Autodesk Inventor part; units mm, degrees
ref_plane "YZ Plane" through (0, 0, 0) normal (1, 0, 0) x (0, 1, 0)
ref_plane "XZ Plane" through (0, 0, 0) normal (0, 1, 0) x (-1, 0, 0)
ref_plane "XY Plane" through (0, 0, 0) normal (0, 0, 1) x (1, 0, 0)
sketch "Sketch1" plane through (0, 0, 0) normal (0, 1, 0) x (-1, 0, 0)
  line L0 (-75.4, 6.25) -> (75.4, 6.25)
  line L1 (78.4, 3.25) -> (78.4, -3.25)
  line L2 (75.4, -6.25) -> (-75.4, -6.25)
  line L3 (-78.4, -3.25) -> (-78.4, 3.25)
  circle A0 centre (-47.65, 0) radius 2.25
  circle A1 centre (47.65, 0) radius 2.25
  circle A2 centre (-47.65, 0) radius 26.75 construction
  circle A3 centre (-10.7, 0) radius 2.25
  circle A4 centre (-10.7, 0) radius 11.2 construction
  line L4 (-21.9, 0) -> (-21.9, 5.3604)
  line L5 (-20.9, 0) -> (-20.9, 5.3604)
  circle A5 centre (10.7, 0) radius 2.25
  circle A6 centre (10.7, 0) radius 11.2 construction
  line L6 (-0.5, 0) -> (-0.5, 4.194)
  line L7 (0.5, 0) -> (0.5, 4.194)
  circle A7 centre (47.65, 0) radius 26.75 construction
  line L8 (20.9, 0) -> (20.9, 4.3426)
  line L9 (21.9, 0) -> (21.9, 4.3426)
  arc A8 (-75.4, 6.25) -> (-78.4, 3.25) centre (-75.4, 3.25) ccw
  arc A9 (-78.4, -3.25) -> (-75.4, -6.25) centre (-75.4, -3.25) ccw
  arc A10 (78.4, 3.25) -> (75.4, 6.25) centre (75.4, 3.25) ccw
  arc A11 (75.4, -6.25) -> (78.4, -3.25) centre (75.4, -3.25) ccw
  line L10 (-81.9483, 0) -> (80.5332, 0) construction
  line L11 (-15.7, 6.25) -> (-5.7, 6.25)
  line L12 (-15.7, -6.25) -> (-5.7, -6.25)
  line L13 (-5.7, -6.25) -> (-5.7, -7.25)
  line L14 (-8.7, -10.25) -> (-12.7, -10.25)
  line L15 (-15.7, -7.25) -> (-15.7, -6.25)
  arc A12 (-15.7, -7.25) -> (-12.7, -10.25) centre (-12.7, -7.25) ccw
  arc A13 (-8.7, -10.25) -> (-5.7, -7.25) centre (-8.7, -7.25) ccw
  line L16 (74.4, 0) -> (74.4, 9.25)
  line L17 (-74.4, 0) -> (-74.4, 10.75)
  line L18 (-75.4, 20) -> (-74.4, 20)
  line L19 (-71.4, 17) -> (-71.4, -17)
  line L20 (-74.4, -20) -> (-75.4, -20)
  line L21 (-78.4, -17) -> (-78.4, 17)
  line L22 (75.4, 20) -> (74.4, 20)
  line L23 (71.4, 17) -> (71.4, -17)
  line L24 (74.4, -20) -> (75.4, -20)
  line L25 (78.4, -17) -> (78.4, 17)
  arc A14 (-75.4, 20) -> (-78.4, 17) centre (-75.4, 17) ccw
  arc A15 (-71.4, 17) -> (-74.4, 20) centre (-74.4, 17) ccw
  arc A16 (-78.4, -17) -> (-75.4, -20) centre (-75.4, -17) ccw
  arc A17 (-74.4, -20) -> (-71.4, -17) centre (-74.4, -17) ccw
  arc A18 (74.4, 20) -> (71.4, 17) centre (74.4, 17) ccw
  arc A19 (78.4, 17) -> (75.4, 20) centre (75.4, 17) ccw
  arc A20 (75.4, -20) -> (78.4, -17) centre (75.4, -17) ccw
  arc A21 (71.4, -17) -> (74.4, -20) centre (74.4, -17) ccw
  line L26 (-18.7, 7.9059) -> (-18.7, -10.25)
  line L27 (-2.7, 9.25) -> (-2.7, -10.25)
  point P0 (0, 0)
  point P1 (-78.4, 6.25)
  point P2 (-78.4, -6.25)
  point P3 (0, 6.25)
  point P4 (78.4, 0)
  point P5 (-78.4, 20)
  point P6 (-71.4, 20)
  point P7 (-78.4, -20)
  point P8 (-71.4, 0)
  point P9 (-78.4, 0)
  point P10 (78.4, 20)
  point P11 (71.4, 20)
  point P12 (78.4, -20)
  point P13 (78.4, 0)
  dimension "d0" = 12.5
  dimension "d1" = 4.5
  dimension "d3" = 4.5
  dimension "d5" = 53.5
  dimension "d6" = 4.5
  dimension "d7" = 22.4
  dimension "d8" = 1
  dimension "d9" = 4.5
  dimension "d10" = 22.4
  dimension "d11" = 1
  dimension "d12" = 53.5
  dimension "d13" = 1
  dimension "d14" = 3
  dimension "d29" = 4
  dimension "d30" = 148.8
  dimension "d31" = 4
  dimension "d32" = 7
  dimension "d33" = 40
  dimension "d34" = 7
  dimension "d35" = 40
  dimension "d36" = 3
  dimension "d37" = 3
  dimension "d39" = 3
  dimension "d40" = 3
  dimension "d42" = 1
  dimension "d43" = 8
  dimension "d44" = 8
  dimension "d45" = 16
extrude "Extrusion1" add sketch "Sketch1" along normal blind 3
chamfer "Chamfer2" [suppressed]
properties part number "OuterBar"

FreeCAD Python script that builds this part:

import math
import FreeCAD as App
import Part
import Sketcher

V = App.Vector

doc = App.newDocument("Part")
params = doc.addObject("Spreadsheet::Sheet", "Params")
for row, (alias, value) in enumerate([
    ("sketch1_radius", "3 mm"),
    ("sketch1_diameter", "4.5 mm"),
    ("sketch1_width", "1 mm"),
    ("sketch1_width2", "4 mm"),
    ("sketch1_height", "34 mm"),
    ("pad1_length", "3 mm"),
], start=1):
    params.set(f"A{row}", alias)
    params.set(f"B{row}", "=" + value)
    params.setAlias(f"B{row}", alias)

body = doc.addObject("PartDesign::Body", "Body")

sketch1 = body.newObject("Sketcher::SketchObject", "Sketch")
sketch1.AttachmentSupport = (doc.getObject("XZ_Plane"), [""])
sketch1.MapMode = "FlatFace"
sketch1.addGeometry(Part.LineSegment(V(71.4, 6.2, 0), V(71.4, 17, 0)), False)
sketch1.addGeometry(Part.ArcOfCircle(Part.Circle(V(74.4, 17, 0), V(0, 0, 1), 3), math.radians(90), math.radians(180)), False)
sketch1.addGeometry(Part.LineSegment(V(74.4, 20, 0), V(75.4, 20, 0)), False)
sketch1.addGeometry(Part.ArcOfCircle(Part.Circle(V(75.4, 17, 0), V(0, 0, 1), 3), math.radians(0), math.radians(90)), False)
sketch1.addGeometry(Part.LineSegment(V(78.4, 17, 0), V(78.4, -17, 0)), False)
sketch1.addGeometry(Part.ArcOfCircle(Part.Circle(V(75.4, -17, 0), V(0, 0, 1), 3), math.radians(-90), math.radians(0)), False)
sketch1.addGeometry(Part.LineSegment(V(75.4, -20, 0), V(74.4, -20, 0)), False)
sketch1.addGeometry(Part.ArcOfCircle(Part.Circle(V(74.4, -17, 0), V(0, 0, 1), 3), math.radians(180), math.radians(270)), False)
sketch1.addGeometry(Part.LineSegment(V(71.4, -17, 0), V(71.4, -6.2, 0)), False)
sketch1.addGeometry(Part.LineSegment(V(71.4, -6.2, 0), V(15.7, -6.2, 0)), False)
sketch1.addGeometry(Part.LineSegment(V(15.7, -6.2, 0), V(15.7, -7.2, 0)), False)
sketch1.addGeometry(Part.ArcOfCircle(Part.Circle(V(12.7, -7.2, 0), V(0, 0, 1), 3), math.radians(-90), math.radians(0)), False)
sketch1.addGeometry(Part.LineSegment(V(12.7, -10.2, 0), V(8.7, -10.2, 0)), False)
sketch1.addGeometry(Part.ArcOfCircle(Part.Circle(V(8.7, -7.2, 0), V(0, 0, 1), 3), math.radians(180), math.radians(270)), False)
sketch1.addGeometry(Part.LineSegment(V(5.7, -7.2, 0), V(5.7, -6.2, 0)), False)
sketch1.addGeometry(Part.LineSegment(V(5.7, -6.2, 0), V(-71.4, -6.2, 0)), False)
sketch1.addGeometry(Part.LineSegment(V(-71.4, -6.2, 0), V(-71.4, -17, 0)), False)
sketch1.addGeometry(Part.ArcOfCircle(Part.Circle(V(-74.4, -17, 0), V(0, 0, 1), 3), math.radians(-90), math.radians(0)), False)
sketch1.addGeometry(Part.LineSegment(V(-74.4, -20, 0), V(-75.4, -20, 0)), False)
sketch1.addGeometry(Part.ArcOfCircle(Part.Circle(V(-75.4, -17, 0), V(0, 0, 1), 3), math.radians(180), math.radians(270)), False)
sketch1.addGeometry(Part.LineSegment(V(-78.4, -17, 0), V(-78.4, 17, 0)), False)
sketch1.addGeometry(Part.ArcOfCircle(Part.Circle(V(-75.4, 17, 0), V(0, 0, 1), 3), math.radians(90), math.radians(180)), False)
sketch1.addGeometry(Part.LineSegment(V(-75.4, 20, 0), V(-74.4, 20, 0)), False)
sketch1.addGeometry(Part.ArcOfCircle(Part.Circle(V(-74.4, 17, 0), V(0, 0, 1), 3), math.radians(0), math.radians(90)), False)
sketch1.addGeometry(Part.LineSegment(V(-71.4, 17, 0), V(-71.4, 6.2, 0)), False)
sketch1.addGeometry(Part.LineSegment(V(-71.4, 6.2, 0), V(71.4, 6.2, 0)), False)
sketch1.addGeometry(Part.Circle(V(10.7, 0, 0), V(0, 0, 1), 2.2), False)
sketch1.addGeometry(Part.Circle(V(-47.6, 0, 0), V(0, 0, 1), 2.2), False)
sketch1.addGeometry(Part.Circle(V(-10.7, 0, 0), V(0, 0, 1), 2.2), False)
sketch1.addGeometry(Part.Circle(V(47.6, 0, 0), V(0, 0, 1), 2.2), False)
sketch1.addConstraint(Sketcher.Constraint("Tangent", 0, 2, 1, 2))
sketch1.addConstraint(Sketcher.Constraint("Tangent", 1, 1, 2, 1))
sketch1.addConstraint(Sketcher.Constraint("Tangent", 2, 2, 3, 2))
sketch1.addConstraint(Sketcher.Constraint("Tangent", 3, 1, 4, 1))
sketch1.addConstraint(Sketcher.Constraint("Tangent", 4, 2, 5, 2))
sketch1.addConstraint(Sketcher.Constraint("Tangent", 5, 1, 6, 1))
sketch1.addConstraint(Sketcher.Constraint("Tangent", 6, 2, 7, 2))
sketch1.addConstraint(Sketcher.Constraint("Tangent", 7, 1, 8, 1))
sketch1.addConstraint(Sketcher.Constraint("Coincident", 8, 2, 9, 1))
sketch1.addConstraint(Sketcher.Constraint("Coincident", 9, 2, 10, 1))
sketch1.addConstraint(Sketcher.Constraint("Tangent", 10, 2, 11, 2))
sketch1.addConstraint(Sketcher.Constraint("Tangent", 11, 1, 12, 1))
sketch1.addConstraint(Sketcher.Constraint("Tangent", 12, 2, 13, 2))
sketch1.addConstraint(Sketcher.Constraint("Tangent", 13, 1, 14, 1))
sketch1.addConstraint(Sketcher.Constraint("Coincident", 14, 2, 15, 1))
sketch1.addConstraint(Sketcher.Constraint("Coincident", 15, 2, 16, 1))
sketch1.addConstraint(Sketcher.Constraint("Tangent", 16, 2, 17, 2))
sketch1.addConstraint(Sketcher.Constraint("Tangent", 17, 1, 18, 1))
sketch1.addConstraint(Sketcher.Constraint("Tangent", 18, 2, 19, 2))
sketch1.addConstraint(Sketcher.Constraint("Tangent", 19, 1, 20, 1))
sketch1.addConstraint(Sketcher.Constraint("Tangent", 20, 2, 21, 2))
sketch1.addConstraint(Sketcher.Constraint("Tangent", 21, 1, 22, 1))
sketch1.addConstraint(Sketcher.Constraint("Tangent", 22, 2, 23, 2))
sketch1.addConstraint(Sketcher.Constraint("Tangent", 23, 1, 24, 1))
sketch1.addConstraint(Sketcher.Constraint("Coincident", 24, 2, 25, 1))
sketch1.addConstraint(Sketcher.Constraint("Coincident", 25, 2, 0, 1))
sketch1.addConstraint(Sketcher.Constraint("Vertical", 0))
sketch1.addConstraint(Sketcher.Constraint("Horizontal", 2))
sketch1.addConstraint(Sketcher.Constraint("Vertical", 4))
sketch1.addConstraint(Sketcher.Constraint("Horizontal", 6))
sketch1.addConstraint(Sketcher.Constraint("Vertical", 8))
sketch1.addConstraint(Sketcher.Constraint("Horizontal", 9))
sketch1.addConstraint(Sketcher.Constraint("Vertical", 10))
sketch1.addConstraint(Sketcher.Constraint("Horizontal", 12))
sketch1.addConstraint(Sketcher.Constraint("Vertical", 14))
sketch1.addConstraint(Sketcher.Constraint("Horizontal", 15))
sketch1.addConstraint(Sketcher.Constraint("Vertical", 16))
sketch1.addConstraint(Sketcher.Constraint("Horizontal", 18))
sketch1.addConstraint(Sketcher.Constraint("Vertical", 20))
sketch1.addConstraint(Sketcher.Constraint("Horizontal", 22))
sketch1.addConstraint(Sketcher.Constraint("Vertical", 24))
sketch1.addConstraint(Sketcher.Constraint("Horizontal", 25))
sketch1.addConstraint(Sketcher.Constraint("Equal", 1, 3))
sketch1.addConstraint(Sketcher.Constraint("Equal", 3, 5))
sketch1.addConstraint(Sketcher.Constraint("Equal", 5, 7))
sketch1.addConstraint(Sketcher.Constraint("Equal", 7, 11))
sketch1.addConstraint(Sketcher.Constraint("Equal", 11, 13))
sketch1.addConstraint(Sketcher.Constraint("Equal", 13, 17))
sketch1.addConstraint(Sketcher.Constraint("Equal", 17, 19))
sketch1.addConstraint(Sketcher.Constraint("Equal", 19, 21))
sketch1.addConstraint(Sketcher.Constraint("Equal", 21, 23))
sketch1.addConstraint(Sketcher.Constraint("Equal", 26, 27))
sketch1.addConstraint(Sketcher.Constraint("Equal", 27, 28))
sketch1.addConstraint(Sketcher.Constraint("Equal", 28, 29))
sketch1.addConstraint(Sketcher.Constraint("Symmetric", 1, 3, 17, 3, -1, 1))
sketch1.addConstraint(Sketcher.Constraint("Symmetric", 5, 3, 21, 3, -1, 1))
sketch1.addConstraint(Sketcher.Constraint("Symmetric", 26, 3, 28, 3, -1, 1))
sketch1.addConstraint(Sketcher.Constraint("Symmetric", 27, 3, 29, 3, -1, 1))
sketch1.addConstraint(Sketcher.Constraint("Symmetric", 8, 2, 24, 2, -1, 1))
sketch1.addConstraint(Sketcher.Constraint("Symmetric", 7, 3, 17, 3, -2))
sketch1.addConstraint(Sketcher.Constraint("PointOnObject", 26, 3, -1))
sketch1.addConstraint(Sketcher.Constraint("PointOnObject", 27, 3, -1))
sketch1.addConstraint(Sketcher.Constraint("Horizontal", 9, 2, 14, 2))
sketch1.addConstraint(Sketcher.Constraint("Equal", 22, 10))
sketch1.addConstraint(Sketcher.Constraint("Radius", 1, 3.0))
sketch1.addConstraint(Sketcher.Constraint("Diameter", 26, 4.5))
sketch1.addConstraint(Sketcher.Constraint("DistanceX", 2, 1, 2, 2, 1.0))
sketch1.addConstraint(Sketcher.Constraint("DistanceX", 12, 2, 12, 1, 4.0))
sketch1.addConstraint(Sketcher.Constraint("DistanceX", 17, 3, 7, 3, 148.8))
sketch1.addConstraint(Sketcher.Constraint("DistanceY", 15, 2, 24, 2, 12.5))
sketch1.addConstraint(Sketcher.Constraint("DistanceY", 4, 2, 4, 1, 34.0))
sketch1.addConstraint(Sketcher.Constraint("DistanceX", 9, 2, 9, 1, 55.7))
sketch1.addConstraint(Sketcher.Constraint("DistanceX", 26, 3, 11, 3, 2.0))
sketch1.addConstraint(Sketcher.Constraint("DistanceX", 27, 3, -1, 1, 47.65))
sketch1.setExpression("Constraints[64]", "Params.sketch1_radius")
sketch1.setExpression("Constraints[65]", "Params.sketch1_diameter")
sketch1.setExpression("Constraints[66]", "Params.sketch1_width")
sketch1.setExpression("Constraints[67]", "Params.sketch1_width2")
sketch1.setExpression("Constraints[70]", "Params.sketch1_height")
pad1 = body.newObject("PartDesign::Pad", "Pad")
pad1.Profile = sketch1
pad1.setExpression("Length", "Params.pad1_length")
pad1.Reversed = True

doc.recompute()
